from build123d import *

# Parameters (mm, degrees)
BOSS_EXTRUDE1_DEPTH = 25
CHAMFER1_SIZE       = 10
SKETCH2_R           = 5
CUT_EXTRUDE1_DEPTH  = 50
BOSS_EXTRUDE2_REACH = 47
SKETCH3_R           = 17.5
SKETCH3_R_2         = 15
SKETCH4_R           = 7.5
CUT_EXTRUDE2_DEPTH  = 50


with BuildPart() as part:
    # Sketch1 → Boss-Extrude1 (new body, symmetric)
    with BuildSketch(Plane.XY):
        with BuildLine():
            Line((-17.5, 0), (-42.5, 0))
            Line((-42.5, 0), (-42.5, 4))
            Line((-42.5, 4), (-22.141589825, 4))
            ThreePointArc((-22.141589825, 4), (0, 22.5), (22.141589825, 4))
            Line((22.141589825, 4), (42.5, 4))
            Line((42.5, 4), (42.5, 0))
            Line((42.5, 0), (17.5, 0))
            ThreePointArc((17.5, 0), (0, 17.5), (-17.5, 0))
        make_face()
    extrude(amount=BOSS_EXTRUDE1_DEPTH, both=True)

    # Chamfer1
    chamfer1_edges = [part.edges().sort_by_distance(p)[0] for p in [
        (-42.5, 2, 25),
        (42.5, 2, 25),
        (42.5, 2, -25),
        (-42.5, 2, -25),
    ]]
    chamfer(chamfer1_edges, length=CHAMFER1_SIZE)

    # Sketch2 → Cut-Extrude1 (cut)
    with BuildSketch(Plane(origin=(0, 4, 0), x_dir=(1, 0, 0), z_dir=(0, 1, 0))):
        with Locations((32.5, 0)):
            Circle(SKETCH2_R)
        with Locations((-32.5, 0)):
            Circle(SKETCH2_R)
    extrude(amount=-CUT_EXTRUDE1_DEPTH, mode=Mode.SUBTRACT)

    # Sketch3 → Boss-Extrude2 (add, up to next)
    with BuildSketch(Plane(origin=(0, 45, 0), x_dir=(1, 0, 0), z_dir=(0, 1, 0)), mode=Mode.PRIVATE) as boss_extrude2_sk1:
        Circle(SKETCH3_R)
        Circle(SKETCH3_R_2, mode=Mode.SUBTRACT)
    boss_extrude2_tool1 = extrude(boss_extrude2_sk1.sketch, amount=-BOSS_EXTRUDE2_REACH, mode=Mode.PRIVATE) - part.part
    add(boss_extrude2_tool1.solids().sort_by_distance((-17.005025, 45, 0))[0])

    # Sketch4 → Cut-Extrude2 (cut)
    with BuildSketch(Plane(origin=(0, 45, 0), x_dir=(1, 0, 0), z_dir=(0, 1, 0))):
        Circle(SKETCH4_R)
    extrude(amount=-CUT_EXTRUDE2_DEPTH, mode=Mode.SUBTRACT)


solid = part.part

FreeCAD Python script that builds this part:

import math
import FreeCAD as App
import Part
import Sketcher

V = App.Vector


def edges_at(feature, points):
    """Names of the edges that pass closest to the given points."""
    edges = feature.Shape.Edges
    near = lambda p: min(range(len(edges)), key=lambda i: edges[i].distToShape(Part.Vertex(*p))[0])
    return sorted({f"Edge{near(p) + 1}" for p in points})

doc = App.newDocument("Part")
body = doc.addObject("PartDesign::Body", "Body")

# Sketch on XY plane
sketch1 = body.newObject("Sketcher::SketchObject", "Sketch")
sketch1.AttachmentSupport = (doc.getObject("XY_Plane"), [""])
sketch1.MapMode = "FlatFace"
sketch1.addGeometry([
    Part.LineSegment(V(-42.5, 0, 0), V(-17.5, 0, 0)),  # 0
    Part.ArcOfCircle(Part.Circle(V(0, 0, 0), V(0, 0, 1), 17.5), math.radians(0), math.radians(180)),  # 1
    Part.LineSegment(V(17.5, 0, 0), V(42.5, 0, 0)),  # 2
    Part.LineSegment(V(42.5, 0, 0), V(42.5, 4, 0)),  # 3
    Part.LineSegment(V(42.5, 4, 0), V(22.14159, 4, 0)),  # 4
    Part.ArcOfCircle(Part.Circle(V(0, 0, 0), V(0, 0, 1), 22.5), math.radians(10.240348), math.radians(169.759652)),  # 5
    Part.LineSegment(V(-22.14159, 4, 0), V(-42.5, 4, 0)),  # 6
    Part.LineSegment(V(-42.5, 4, 0), V(-42.5, 0, 0)),  # 7
], False)
sketch1.addConstraint([
    Sketcher.Constraint("Coincident", 0, 2, 1, 2),
    Sketcher.Constraint("Coincident", 1, 1, 2, 1),
    Sketcher.Constraint("Coincident", 2, 2, 3, 1),
    Sketcher.Constraint("Coincident", 3, 2, 4, 1),
    Sketcher.Constraint("Coincident", 4, 2, 5, 1),
    Sketcher.Constraint("Coincident", 5, 2, 6, 1),
    Sketcher.Constraint("Coincident", 6, 2, 7, 1),
    Sketcher.Constraint("Coincident", 7, 2, 0, 1),
    Sketcher.Constraint("Horizontal", 0),
    Sketcher.Constraint("Horizontal", 2),
    Sketcher.Constraint("Vertical", 3),
    Sketcher.Constraint("Horizontal", 4),
    Sketcher.Constraint("Horizontal", 6),
    Sketcher.Constraint("Vertical", 7),
    Sketcher.Constraint("Coincident", 1, 3, -1, 1),
    Sketcher.Constraint("Coincident", 5, 3, -1, 1),
    Sketcher.Constraint("Symmetric", 2, 2, 7, 2, -1, 1),
    Sketcher.Constraint("PointOnObject", 0, 2, -1),
    Sketcher.Constraint("Horizontal", 4, 2, 5, 2),
    Sketcher.Constraint("Radius", 1, 17.5),
    Sketcher.Constraint("Radius", 5, 22.5),
    Sketcher.Constraint("DistanceX", 0, 1, 0, 2, 25.0),
    Sketcher.Constraint("DistanceY", 3, 1, 3, 2, 4.0),
])
pad1 = body.newObject("PartDesign::Pad", "Pad")
pad1.Profile = sketch1
pad1.Length = 50
pad1.Midplane = True
doc.recompute()

chamfer = body.newObject("PartDesign::Chamfer", "Chamfer")
chamfer.Base = (pad1, edges_at(pad1, [
    (-42.5, 2, 25),
    (42.5, 2, 25),
    (42.5, 2, -25),
    (-42.5, 2, -25),
]))
chamfer.Size = 10

# Sketch on XZ plane
sketch2 = body.newObject("Sketcher::SketchObject", "Sketch001")
sketch2.AttachmentSupport = (doc.getObject("XZ_Plane"), [""])
sketch2.MapMode = "FlatFace"
sketch2.AttachmentOffset = App.Placement(V(0, 0, -4), App.Rotation())
sketch2.addGeometry([
    Part.Circle(V(32.5, 0, 0), V(0, 0, 1), 5),
    Part.Circle(V(-32.5, 0, 0), V(0, 0, 1), 5),
], False)
sketch2.addConstraint([
    Sketcher.Constraint("Equal", 0, 1),
    Sketcher.Constraint("Symmetric", 0, 3, 1, 3, -1, 1),
    Sketcher.Constraint("PointOnObject", 0, 3, -1),
    Sketcher.Constraint("Diameter", 0, 10.0),
    Sketcher.Constraint("DistanceX", 1, 3, 0, 3, 65.0),
])
pocket1 = body.newObject("PartDesign::Pocket", "Pocket")
pocket1.Profile = sketch2
pocket1.Length = 50
pocket1.Reversed = True

# Sketch on XZ plane
sketch3 = body.newObject("Sketcher::SketchObject", "Sketch002")
sketch3.AttachmentSupport = (doc.getObject("XZ_Plane"), [""])
sketch3.MapMode = "FlatFace"
sketch3.AttachmentOffset = App.Placement(V(0, 0, -45), App.Rotation())
sketch3.addGeometry([
    Part.Circle(V(0, 0, 0), V(0, 0, 1), 17.5),
    Part.Circle(V(0, 0, 0), V(0, 0, 1), 15),
], False)
sketch3.addConstraint([
    Sketcher.Constraint("Coincident", 0, 3, -1, 1),
    Sketcher.Constraint("Coincident", 1, 3, -1, 1),
    Sketcher.Constraint("Diameter", 0, 35.0),
    Sketcher.Constraint("Diameter", 1, 30.0),
])
pad2 = body.newObject("PartDesign::Pad", "Pad001")
pad2.Profile = sketch3
pad2.Type = "UpToFirst"

# Sketch on XZ plane
sketch4 = body.newObject("Sketcher::SketchObject", "Sketch003")
sketch4.AttachmentSupport = (doc.getObject("XZ_Plane"), [""])
sketch4.MapMode = "FlatFace"
sketch4.AttachmentOffset = App.Placement(V(0, 0, -45), App.Rotation())
sketch4.addGeometry(Part.Circle(V(0, 0, 0), V(0, 0, 1), 7.5), False)
sketch4.addConstraint([
    Sketcher.Constraint("Coincident", 0, 3, -1, 1),
    Sketcher.Constraint("Diameter", 0, 15.0),
])
pocket2 = body.newObject("PartDesign::Pocket", "Pocket001")
pocket2.Profile = sketch4
pocket2.Length = 50
pocket2.Reversed = True

doc.recompute()
